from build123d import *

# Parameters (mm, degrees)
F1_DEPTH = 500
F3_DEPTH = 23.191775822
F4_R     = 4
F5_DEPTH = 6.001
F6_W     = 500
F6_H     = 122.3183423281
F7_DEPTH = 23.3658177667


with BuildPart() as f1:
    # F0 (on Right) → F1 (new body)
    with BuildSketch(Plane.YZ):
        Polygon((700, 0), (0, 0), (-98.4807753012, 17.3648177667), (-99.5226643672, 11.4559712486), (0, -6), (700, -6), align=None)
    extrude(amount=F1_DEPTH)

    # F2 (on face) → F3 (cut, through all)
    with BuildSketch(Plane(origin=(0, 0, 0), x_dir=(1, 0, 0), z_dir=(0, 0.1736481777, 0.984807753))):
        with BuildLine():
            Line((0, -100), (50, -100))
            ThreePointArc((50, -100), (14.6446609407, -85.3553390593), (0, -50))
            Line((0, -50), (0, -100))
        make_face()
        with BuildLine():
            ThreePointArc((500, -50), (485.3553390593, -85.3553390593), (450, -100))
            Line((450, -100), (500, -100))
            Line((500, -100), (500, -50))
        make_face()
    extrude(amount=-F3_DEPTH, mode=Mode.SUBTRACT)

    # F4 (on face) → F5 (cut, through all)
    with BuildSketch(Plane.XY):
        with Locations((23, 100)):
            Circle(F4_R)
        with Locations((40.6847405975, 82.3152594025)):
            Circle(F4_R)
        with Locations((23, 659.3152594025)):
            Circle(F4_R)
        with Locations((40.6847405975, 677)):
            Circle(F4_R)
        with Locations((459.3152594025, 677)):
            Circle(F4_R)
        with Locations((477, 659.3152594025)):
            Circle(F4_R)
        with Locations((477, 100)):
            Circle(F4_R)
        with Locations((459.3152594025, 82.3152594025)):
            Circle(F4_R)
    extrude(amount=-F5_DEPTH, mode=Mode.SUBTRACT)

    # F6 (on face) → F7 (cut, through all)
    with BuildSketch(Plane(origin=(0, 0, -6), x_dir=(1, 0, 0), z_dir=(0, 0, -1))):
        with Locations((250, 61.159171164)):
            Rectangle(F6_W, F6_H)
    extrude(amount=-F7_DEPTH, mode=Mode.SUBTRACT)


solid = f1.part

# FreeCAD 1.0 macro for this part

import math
import FreeCAD as App
import Part
import Sketcher
from FreeCAD import Vector
Q = App.Units.Quantity


def add_polygon(sketch, points):
    """Adds a closed chain of lines whose ends are joined by coincident constraints."""
    first, n = sketch.GeometryCount, len(points)
    for a, b in zip(points, points[1:] + points[:1]):
        sketch.addGeometry(Part.LineSegment(App.Vector(*a, 0), App.Vector(*b, 0)), False)
    for i in range(n):
        sketch.addConstraint(Sketcher.Constraint("Coincident", first + i, 2, first + (i + 1) % n, 1))

doc = App.newDocument("Part")
body = doc.addObject("PartDesign::Body", "Body")

sketch1 = body.newObject("Sketcher::SketchObject", "Sketch")
sketch1.AttachmentSupport = (doc.getObject("YZ_Plane"), [""])
sketch1.MapMode = "FlatFace"
add_polygon(sketch1, [(700, 0), (0, 0), (-98, 17), (-100, 11), (0, -6), (700, -6)])
sketch1.addConstraint(Sketcher.Constraint("Horizontal", 0))
sketch1.addConstraint(Sketcher.Constraint("Horizontal", 4))
sketch1.addConstraint(Sketcher.Constraint("Vertical", 5))
sketch1.addConstraint(Sketcher.Constraint("Coincident", 0, 2, -1, 1))
sketch1.addConstraint(Sketcher.Constraint("PointOnObject", 3, 2, -2))
sketch1.addConstraint(Sketcher.Constraint("Perpendicular", 1, 2))
sketch1.addConstraint(Sketcher.Constraint("DistanceX", 0, 2, 0, 1, Q("700 mm")))
sketch1.addConstraint(Sketcher.Constraint("DistanceY", 5, 1, 5, 2, Q("6 mm")))
sketch1.addConstraint(Sketcher.Constraint("Angle", 1, Q("170 deg")))
sketch1.addConstraint(Sketcher.Constraint("Distance", 1, Q("100 mm")))
sketch1.addConstraint(Sketcher.Constraint("Distance", 2, Q("6 mm")))
pad1 = body.newObject("PartDesign::Pad", "Pad")
pad1.Profile = sketch1
pad1.Length = 500

sketch2 = body.newObject("Sketcher::SketchObject", "Sketch001")
sketch2.Placement = App.Placement(Vector(0, 0, 0), App.Rotation(Vector(1, 0, 0), Vector(0, 0.984807753, -0.173648178), Vector(0, 0.173648178, 0.984807753), "ZXY"))
sketch2.addGeometry(Part.LineSegment(Vector(0, -100, 0), Vector(50, -100, 0)), False)
sketch2.addGeometry(Part.ArcOfCircle(Part.Circle(Vector(50, -50, 0), Vector(0, 0, 1), 50), math.radians(180), math.radians(270)), False)
sketch2.addGeometry(Part.LineSegment(Vector(0, -50, 0), Vector(0, -100, 0)), False)
sketch2.addGeometry(Part.ArcOfCircle(Part.Circle(Vector(450, -50, 0), Vector(0, 0, 1), 50), math.radians(-90), math.radians(0)), False)
sketch2.addGeometry(Part.LineSegment(Vector(450, -100, 0), Vector(500, -100, 0)), False)
sketch2.addGeometry(Part.LineSegment(Vector(500, -100, 0), Vector(500, -50, 0)), False)
sketch2.addConstraint(Sketcher.Constraint("Tangent", 0, 2, 1, 2))
sketch2.addConstraint(Sketcher.Constraint("Tangent", 1, 1, 2, 1))
sketch2.addConstraint(Sketcher.Constraint("Coincident", 2, 2, 0, 1))
sketch2.addConstraint(Sketcher.Constraint("Tangent", 3, 1, 4, 1))
sketch2.addConstraint(Sketcher.Constraint("Coincident", 4, 2, 5, 1))
sketch2.addConstraint(Sketcher.Constraint("Tangent", 5, 2, 3, 2))
sketch2.addConstraint(Sketcher.Constraint("Horizontal", 0))
sketch2.addConstraint(Sketcher.Constraint("Vertical", 2))
sketch2.addConstraint(Sketcher.Constraint("Horizontal", 4))
sketch2.addConstraint(Sketcher.Constraint("Vertical", 5))
sketch2.addConstraint(Sketcher.Constraint("Equal", 1, 3))
sketch2.addConstraint(Sketcher.Constraint("PointOnObject", 1, 1, -2))
sketch2.addConstraint(Sketcher.Constraint("Horizontal", 1, 3, 3, 3))
sketch2.addConstraint(Sketcher.Constraint("Radius", 1, Q("50 mm")))
sketch2.addConstraint(Sketcher.Constraint("DistanceY", 1, 3, -1, 1, Q("50 mm")))
sketch2.addConstraint(Sketcher.Constraint("DistanceX", -1, 1, 3, 3, Q("450 mm")))
pocket1 = body.newObject("PartDesign::Pocket", "Pocket")
pocket1.Profile = sketch2
pocket1.Type = "ThroughAll"

sketch3 = body.newObject("Sketcher::SketchObject", "Sketch002")
sketch3.AttachmentSupport = (doc.getObject("XY_Plane"), [""])
sketch3.MapMode = "FlatFace"
sketch3.addGeometry(Part.Circle(Vector(23, 100, 0), Vector(0, 0, 1), 4), False)
sketch3.addGeometry(Part.Circle(Vector(40.7, 82.3, 0), Vector(0, 0, 1), 4), False)
sketch3.addGeometry(Part.Circle(Vector(23, 659.3, 0), Vector(0, 0, 1), 4), False)
sketch3.addGeometry(Part.Circle(Vector(40.7, 677, 0), Vector(0, 0, 1), 4), False)
sketch3.addGeometry(Part.Circle(Vector(459.3, 677, 0), Vector(0, 0, 1), 4), False)
sketch3.addGeometry(Part.Circle(Vector(477, 659.3, 0), Vector(0, 0, 1), 4), False)
sketch3.addGeometry(Part.Circle(Vector(477, 100, 0), Vector(0, 0, 1), 4), False)
sketch3.addGeometry(Part.Circle(Vector(459.3, 82.3, 0), Vector(0, 0, 1), 4), False)
sketch3.addConstraint(Sketcher.Constraint("Equal", 0, 1))
sketch3.addConstraint(Sketcher.Constraint("Equal", 1, 2))
sketch3.addConstraint(Sketcher.Constraint("Equal", 2, 3))
sketch3.addConstraint(Sketcher.Constraint("Equal", 3, 4))
sketch3.addConstraint(Sketcher.Constraint("Equal", 4, 5))
sketch3.addConstraint(Sketcher.Constraint("Equal", 5, 6))
sketch3.addConstraint(Sketcher.Constraint("Equal", 6, 7))
sketch3.addConstraint(Sketcher.Constraint("Horizontal", 3, 3, 4, 3))
sketch3.addConstraint(Sketcher.Constraint("Horizontal", 2, 3, 5, 3))
sketch3.addConstraint(Sketcher.Constraint("Horizontal", 0, 3, 6, 3))
sketch3.addConstraint(Sketcher.Constraint("Horizontal", 1, 3, 7, 3))
sketch3.addConstraint(Sketcher.Constraint("Vertical", 0, 3, 2, 3))
sketch3.addConstraint(Sketcher.Constraint("Vertical", 1, 3, 3, 3))
sketch3.addConstraint(Sketcher.Constraint("Vertical", 5, 3, 6, 3))
sketch3.addConstraint(Sketcher.Constraint("Vertical", 4, 3, 7, 3))
sketch3.addConstraint(Sketcher.Constraint("Diameter", 0, Q("8 mm")))
sketch3.addConstraint(Sketcher.Constraint("DistanceX", -1, 1, 0, 3, Q("23 mm")))
sketch3.addConstraint(Sketcher.Constraint("DistanceY", -1, 1, 0, 3, Q("100 mm")))
sketch3.addConstraint(Sketcher.Constraint("DistanceY", -1, 1, 3, 3, Q("677 mm")))
sketch3.addConstraint(Sketcher.Constraint("DistanceX", -1, 1, 5, 3, Q("477 mm")))
sketch3.addConstraint(Sketcher.Constraint("DistanceY", 1, 3, 2, 3, Q("577 mm")))
sketch3.addConstraint(Sketcher.Constraint("DistanceX", -1, 1, 1, 3, Q("40.684741 mm")))
sketch3.addConstraint(Sketcher.Constraint("DistanceY", -1, 1, 1, 3, Q("82.315259 mm")))
sketch3.addConstraint(Sketcher.Constraint("DistanceX", -1, 1, 4, 3, Q("459.315259 mm")))
pocket2 = body.newObject("PartDesign::Pocket", "Pocket001")
pocket2.Profile = sketch3
pocket2.Type = "ThroughAll"

sketch4 = body.newObject("Sketcher::SketchObject", "Sketch003")
sketch4.AttachmentSupport = (doc.getObject("XY_Plane"), [""])
sketch4.MapMode = "FlatFace"
sketch4.AttachmentOffset = App.Placement(Vector(0, 0, -6), App.Rotation())
add_polygon(sketch4, [(0, -122), (0, 0), (500, 0), (500, -122)])
sketch4.addConstraint(Sketcher.Constraint("Vertical", 0))
sketch4.addConstraint(Sketcher.Constraint("Horizontal", 1))
sketch4.addConstraint(Sketcher.Constraint("Vertical", 2))
sketch4.addConstraint(Sketcher.Constraint("Horizontal", 3))
sketch4.addConstraint(Sketcher.Constraint("Coincident", 0, 2, -1, 1))
sketch4.addConstraint(Sketcher.Constraint("DistanceX", 1, 1, 1, 2, Q("500 mm")))
sketch4.addConstraint(Sketcher.Constraint("DistanceY", 0, 1, 0, 2, Q("122.318342 mm")))
pocket3 = body.newObject("PartDesign::Pocket", "Pocket002")
pocket3.Profile = sketch4
pocket3.Type = "ThroughAll"
pocket3.Reversed = True

doc.recompute()
